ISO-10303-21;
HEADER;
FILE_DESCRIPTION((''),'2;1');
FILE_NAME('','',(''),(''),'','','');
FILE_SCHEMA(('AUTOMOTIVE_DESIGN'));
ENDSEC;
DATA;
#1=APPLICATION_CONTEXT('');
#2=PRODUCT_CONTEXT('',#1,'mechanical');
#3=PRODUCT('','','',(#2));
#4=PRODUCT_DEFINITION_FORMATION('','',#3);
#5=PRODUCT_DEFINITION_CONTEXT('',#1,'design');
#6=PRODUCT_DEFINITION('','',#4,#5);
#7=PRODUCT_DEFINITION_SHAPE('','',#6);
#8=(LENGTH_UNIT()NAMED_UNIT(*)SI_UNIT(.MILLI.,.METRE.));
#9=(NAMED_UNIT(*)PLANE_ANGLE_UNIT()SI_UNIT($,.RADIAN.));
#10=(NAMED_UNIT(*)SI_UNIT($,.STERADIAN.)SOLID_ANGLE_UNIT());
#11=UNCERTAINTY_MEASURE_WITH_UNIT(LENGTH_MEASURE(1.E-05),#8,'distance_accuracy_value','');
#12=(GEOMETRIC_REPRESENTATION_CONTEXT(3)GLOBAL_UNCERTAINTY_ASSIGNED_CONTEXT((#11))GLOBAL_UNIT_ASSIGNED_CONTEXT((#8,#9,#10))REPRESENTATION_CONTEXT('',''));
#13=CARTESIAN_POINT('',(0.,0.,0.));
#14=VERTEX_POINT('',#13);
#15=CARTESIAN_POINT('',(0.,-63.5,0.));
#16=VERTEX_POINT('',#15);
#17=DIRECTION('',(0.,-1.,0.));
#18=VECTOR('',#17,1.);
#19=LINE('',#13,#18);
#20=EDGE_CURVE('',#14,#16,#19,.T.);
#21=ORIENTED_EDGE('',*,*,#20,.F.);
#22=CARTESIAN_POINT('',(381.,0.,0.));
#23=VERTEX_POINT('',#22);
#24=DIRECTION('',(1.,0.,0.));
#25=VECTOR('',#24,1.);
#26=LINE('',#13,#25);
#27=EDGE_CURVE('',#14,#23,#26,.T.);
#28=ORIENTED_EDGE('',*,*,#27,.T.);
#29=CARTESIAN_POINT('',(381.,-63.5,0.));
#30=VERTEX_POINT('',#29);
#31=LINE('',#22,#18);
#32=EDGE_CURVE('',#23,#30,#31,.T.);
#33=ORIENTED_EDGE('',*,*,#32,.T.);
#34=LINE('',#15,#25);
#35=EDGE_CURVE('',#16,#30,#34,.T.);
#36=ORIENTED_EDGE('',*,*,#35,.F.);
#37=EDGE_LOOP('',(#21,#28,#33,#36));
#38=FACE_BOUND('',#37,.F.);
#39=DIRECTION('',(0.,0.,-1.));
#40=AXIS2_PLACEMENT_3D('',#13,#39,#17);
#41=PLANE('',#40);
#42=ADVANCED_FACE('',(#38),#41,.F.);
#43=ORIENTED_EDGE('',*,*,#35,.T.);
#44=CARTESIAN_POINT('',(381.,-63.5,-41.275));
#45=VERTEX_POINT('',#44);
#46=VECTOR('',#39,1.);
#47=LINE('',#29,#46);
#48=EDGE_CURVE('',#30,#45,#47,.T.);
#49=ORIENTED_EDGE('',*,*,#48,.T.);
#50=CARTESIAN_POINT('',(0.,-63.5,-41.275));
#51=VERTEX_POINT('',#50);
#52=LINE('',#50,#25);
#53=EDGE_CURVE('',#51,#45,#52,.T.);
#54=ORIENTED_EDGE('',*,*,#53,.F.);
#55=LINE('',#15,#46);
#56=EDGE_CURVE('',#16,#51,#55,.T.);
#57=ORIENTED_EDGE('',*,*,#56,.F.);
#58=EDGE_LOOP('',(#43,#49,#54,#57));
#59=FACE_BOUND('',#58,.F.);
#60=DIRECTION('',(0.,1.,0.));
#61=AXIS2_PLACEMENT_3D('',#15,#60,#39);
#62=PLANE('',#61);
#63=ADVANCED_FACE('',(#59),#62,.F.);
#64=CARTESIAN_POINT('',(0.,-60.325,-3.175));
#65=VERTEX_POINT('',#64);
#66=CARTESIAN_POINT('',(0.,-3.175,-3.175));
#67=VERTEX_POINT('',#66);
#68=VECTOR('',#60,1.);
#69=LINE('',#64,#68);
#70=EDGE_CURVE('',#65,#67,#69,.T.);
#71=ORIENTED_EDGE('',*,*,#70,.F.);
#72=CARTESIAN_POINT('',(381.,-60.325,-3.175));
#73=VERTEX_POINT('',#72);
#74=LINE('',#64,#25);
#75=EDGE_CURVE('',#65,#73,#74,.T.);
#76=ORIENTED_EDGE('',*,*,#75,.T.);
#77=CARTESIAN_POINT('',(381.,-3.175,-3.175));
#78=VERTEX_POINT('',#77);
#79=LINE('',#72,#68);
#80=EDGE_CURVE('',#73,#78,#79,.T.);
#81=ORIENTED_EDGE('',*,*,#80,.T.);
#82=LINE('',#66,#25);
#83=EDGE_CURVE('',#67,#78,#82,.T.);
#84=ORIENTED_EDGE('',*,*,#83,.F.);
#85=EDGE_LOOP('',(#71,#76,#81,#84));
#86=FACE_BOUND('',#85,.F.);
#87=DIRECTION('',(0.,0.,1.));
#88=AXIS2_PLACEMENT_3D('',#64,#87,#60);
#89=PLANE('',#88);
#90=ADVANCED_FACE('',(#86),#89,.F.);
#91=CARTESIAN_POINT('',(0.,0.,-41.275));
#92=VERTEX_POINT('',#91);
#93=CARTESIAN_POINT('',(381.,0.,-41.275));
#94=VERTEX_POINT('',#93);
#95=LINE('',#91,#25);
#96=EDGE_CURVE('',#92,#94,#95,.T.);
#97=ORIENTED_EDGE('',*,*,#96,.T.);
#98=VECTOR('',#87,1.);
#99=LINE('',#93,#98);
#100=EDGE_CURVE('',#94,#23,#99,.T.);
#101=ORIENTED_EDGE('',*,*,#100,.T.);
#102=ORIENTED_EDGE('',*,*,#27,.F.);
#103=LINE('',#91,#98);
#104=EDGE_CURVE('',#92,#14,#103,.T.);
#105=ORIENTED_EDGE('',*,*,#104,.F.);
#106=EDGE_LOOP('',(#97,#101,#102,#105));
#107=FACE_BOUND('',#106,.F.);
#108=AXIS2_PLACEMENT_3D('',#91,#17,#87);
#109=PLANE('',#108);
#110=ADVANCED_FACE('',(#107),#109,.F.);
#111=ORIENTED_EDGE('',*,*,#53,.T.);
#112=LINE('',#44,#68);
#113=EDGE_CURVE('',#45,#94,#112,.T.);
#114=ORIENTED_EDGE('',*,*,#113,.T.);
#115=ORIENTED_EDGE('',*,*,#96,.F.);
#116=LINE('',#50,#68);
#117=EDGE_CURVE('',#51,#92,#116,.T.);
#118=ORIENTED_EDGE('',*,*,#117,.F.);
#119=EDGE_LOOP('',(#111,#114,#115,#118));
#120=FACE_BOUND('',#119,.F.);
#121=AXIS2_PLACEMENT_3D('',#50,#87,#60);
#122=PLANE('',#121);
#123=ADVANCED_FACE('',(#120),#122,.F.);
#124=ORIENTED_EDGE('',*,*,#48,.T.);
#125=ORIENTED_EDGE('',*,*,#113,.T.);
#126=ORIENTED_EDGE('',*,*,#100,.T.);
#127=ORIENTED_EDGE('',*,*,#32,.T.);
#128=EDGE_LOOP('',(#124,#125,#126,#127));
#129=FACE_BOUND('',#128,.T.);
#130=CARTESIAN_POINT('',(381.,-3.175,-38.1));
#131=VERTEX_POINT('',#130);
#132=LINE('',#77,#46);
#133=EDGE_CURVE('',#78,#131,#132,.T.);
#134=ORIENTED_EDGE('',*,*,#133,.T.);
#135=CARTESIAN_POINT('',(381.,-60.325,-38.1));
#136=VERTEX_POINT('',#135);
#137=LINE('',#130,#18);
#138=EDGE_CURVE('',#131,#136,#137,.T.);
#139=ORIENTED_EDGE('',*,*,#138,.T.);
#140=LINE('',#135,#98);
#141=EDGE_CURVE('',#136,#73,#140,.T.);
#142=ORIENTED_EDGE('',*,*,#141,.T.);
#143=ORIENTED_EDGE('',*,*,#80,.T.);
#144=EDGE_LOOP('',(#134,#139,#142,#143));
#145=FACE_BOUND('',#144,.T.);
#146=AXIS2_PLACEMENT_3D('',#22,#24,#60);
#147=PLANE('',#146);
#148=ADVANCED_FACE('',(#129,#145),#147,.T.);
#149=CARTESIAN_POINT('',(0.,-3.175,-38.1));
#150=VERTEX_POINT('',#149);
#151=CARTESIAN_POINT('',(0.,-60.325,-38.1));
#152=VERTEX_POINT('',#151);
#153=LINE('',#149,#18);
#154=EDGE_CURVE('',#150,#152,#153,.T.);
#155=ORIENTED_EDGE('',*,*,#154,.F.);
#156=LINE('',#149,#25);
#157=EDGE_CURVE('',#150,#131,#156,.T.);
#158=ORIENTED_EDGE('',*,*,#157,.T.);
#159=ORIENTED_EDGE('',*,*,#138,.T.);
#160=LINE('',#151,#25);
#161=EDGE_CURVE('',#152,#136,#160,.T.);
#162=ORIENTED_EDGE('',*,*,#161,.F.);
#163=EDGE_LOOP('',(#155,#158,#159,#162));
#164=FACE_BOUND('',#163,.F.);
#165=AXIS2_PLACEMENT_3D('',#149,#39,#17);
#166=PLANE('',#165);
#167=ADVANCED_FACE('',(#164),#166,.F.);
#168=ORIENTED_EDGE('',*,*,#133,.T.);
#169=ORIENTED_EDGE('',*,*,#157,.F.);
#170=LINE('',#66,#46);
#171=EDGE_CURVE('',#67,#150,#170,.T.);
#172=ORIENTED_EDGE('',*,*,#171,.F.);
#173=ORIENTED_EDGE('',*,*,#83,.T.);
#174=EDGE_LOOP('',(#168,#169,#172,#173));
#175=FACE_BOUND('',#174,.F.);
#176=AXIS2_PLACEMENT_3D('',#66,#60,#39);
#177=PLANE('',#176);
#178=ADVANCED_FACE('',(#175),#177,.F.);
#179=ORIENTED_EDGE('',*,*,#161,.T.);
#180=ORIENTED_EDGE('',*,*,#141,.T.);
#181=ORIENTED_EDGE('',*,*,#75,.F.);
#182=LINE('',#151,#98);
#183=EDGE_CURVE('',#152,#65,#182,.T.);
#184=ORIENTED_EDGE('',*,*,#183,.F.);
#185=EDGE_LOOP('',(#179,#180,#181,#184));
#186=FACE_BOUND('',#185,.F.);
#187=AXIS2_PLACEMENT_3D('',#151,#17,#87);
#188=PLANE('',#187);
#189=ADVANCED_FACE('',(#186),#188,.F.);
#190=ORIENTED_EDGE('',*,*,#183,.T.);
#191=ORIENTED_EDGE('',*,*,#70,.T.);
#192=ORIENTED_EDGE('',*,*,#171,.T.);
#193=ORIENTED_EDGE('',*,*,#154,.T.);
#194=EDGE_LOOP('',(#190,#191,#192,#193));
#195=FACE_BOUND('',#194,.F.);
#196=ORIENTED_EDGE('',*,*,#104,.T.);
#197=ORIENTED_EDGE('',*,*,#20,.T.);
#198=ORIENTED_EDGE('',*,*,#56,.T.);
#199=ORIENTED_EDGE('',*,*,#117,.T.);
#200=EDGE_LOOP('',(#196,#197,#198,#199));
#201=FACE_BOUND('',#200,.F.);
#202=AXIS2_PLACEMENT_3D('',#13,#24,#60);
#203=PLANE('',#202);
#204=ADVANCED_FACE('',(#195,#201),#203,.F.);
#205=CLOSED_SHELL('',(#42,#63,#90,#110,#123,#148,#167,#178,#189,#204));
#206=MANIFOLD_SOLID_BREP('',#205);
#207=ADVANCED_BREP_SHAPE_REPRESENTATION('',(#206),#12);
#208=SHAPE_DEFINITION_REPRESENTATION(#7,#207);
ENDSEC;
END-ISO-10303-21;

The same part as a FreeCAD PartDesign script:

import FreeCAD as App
import Part
import Sketcher
from FreeCAD import Vector
Q = App.Units.Quantity

doc = App.newDocument("Part")
body = doc.addObject("PartDesign::Body", "Body")

sketch1 = body.newObject("Sketcher::SketchObject", "Sketch")
sketch1.AttachmentSupport = (doc.getObject("YZ_Plane"), [""])
sketch1.MapMode = "FlatFace"
sketch1.addGeometry(Part.LineSegment(Vector(0, -41, 0), Vector(0, 0, 0)), False)
sketch1.addGeometry(Part.LineSegment(Vector(0, 0, 0), Vector(-64, 0, 0)), False)
sketch1.addGeometry(Part.LineSegment(Vector(-64, 0, 0), Vector(-64, -41, 0)), False)
sketch1.addGeometry(Part.LineSegment(Vector(-64, -41, 0), Vector(0, -41, 0)), False)
sketch1.addGeometry(Part.LineSegment(Vector(-3, -38, 0), Vector(-60, -38, 0)), False)
sketch1.addGeometry(Part.LineSegment(Vector(-60, -38, 0), Vector(-60, -3, 0)), False)
sketch1.addGeometry(Part.LineSegment(Vector(-60, -3, 0), Vector(-3, -3, 0)), False)
sketch1.addGeometry(Part.LineSegment(Vector(-3, -3, 0), Vector(-3, -38, 0)), False)
sketch1.addConstraint(Sketcher.Constraint("Coincident", 0, 2, 1, 1))
sketch1.addConstraint(Sketcher.Constraint("Coincident", 1, 2, 2, 1))
sketch1.addConstraint(Sketcher.Constraint("Coincident", 2, 2, 3, 1))
sketch1.addConstraint(Sketcher.Constraint("Coincident", 3, 2, 0, 1))
sketch1.addConstraint(Sketcher.Constraint("Coincident", 4, 2, 5, 1))
sketch1.addConstraint(Sketcher.Constraint("Coincident", 5, 2, 6, 1))
sketch1.addConstraint(Sketcher.Constraint("Coincident", 6, 2, 7, 1))
sketch1.addConstraint(Sketcher.Constraint("Coincident", 7, 2, 4, 1))
sketch1.addConstraint(Sketcher.Constraint("Vertical", 0))
sketch1.addConstraint(Sketcher.Constraint("Horizontal", 1))
sketch1.addConstraint(Sketcher.Constraint("Vertical", 2))
sketch1.addConstraint(Sketcher.Constraint("Horizontal", 3))
sketch1.addConstraint(Sketcher.Constraint("Horizontal", 4))
sketch1.addConstraint(Sketcher.Constraint("Vertical", 5))
sketch1.addConstraint(Sketcher.Constraint("Horizontal", 6))
sketch1.addConstraint(Sketcher.Constraint("Vertical", 7))
sketch1.addConstraint(Sketcher.Constraint("Coincident", 0, 2, -1, 1))
sketch1.addConstraint(Sketcher.Constraint("DistanceX", 1, 2, 1, 1, Q("2.5 in")))
sketch1.addConstraint(Sketcher.Constraint("DistanceY", 0, 1, 0, 2, Q("1.625 in")))
sketch1.addConstraint(Sketcher.Constraint("DistanceY", 5, 2, -1, 1, Q("0.125 in")))
sketch1.addConstraint(Sketcher.Constraint("DistanceX", 6, 2, -1, 1, Q("0.125 in")))
sketch1.addConstraint(Sketcher.Constraint("DistanceX", 2, 2, 4, 2, Q("0.125 in")))
sketch1.addConstraint(Sketcher.Constraint("DistanceY", 2, 2, 4, 2, Q("0.125 in")))
pad1 = body.newObject("PartDesign::Pad", "Pad")
pad1.Profile = sketch1
pad1.Length = Q("15 in")

doc.recompute()
